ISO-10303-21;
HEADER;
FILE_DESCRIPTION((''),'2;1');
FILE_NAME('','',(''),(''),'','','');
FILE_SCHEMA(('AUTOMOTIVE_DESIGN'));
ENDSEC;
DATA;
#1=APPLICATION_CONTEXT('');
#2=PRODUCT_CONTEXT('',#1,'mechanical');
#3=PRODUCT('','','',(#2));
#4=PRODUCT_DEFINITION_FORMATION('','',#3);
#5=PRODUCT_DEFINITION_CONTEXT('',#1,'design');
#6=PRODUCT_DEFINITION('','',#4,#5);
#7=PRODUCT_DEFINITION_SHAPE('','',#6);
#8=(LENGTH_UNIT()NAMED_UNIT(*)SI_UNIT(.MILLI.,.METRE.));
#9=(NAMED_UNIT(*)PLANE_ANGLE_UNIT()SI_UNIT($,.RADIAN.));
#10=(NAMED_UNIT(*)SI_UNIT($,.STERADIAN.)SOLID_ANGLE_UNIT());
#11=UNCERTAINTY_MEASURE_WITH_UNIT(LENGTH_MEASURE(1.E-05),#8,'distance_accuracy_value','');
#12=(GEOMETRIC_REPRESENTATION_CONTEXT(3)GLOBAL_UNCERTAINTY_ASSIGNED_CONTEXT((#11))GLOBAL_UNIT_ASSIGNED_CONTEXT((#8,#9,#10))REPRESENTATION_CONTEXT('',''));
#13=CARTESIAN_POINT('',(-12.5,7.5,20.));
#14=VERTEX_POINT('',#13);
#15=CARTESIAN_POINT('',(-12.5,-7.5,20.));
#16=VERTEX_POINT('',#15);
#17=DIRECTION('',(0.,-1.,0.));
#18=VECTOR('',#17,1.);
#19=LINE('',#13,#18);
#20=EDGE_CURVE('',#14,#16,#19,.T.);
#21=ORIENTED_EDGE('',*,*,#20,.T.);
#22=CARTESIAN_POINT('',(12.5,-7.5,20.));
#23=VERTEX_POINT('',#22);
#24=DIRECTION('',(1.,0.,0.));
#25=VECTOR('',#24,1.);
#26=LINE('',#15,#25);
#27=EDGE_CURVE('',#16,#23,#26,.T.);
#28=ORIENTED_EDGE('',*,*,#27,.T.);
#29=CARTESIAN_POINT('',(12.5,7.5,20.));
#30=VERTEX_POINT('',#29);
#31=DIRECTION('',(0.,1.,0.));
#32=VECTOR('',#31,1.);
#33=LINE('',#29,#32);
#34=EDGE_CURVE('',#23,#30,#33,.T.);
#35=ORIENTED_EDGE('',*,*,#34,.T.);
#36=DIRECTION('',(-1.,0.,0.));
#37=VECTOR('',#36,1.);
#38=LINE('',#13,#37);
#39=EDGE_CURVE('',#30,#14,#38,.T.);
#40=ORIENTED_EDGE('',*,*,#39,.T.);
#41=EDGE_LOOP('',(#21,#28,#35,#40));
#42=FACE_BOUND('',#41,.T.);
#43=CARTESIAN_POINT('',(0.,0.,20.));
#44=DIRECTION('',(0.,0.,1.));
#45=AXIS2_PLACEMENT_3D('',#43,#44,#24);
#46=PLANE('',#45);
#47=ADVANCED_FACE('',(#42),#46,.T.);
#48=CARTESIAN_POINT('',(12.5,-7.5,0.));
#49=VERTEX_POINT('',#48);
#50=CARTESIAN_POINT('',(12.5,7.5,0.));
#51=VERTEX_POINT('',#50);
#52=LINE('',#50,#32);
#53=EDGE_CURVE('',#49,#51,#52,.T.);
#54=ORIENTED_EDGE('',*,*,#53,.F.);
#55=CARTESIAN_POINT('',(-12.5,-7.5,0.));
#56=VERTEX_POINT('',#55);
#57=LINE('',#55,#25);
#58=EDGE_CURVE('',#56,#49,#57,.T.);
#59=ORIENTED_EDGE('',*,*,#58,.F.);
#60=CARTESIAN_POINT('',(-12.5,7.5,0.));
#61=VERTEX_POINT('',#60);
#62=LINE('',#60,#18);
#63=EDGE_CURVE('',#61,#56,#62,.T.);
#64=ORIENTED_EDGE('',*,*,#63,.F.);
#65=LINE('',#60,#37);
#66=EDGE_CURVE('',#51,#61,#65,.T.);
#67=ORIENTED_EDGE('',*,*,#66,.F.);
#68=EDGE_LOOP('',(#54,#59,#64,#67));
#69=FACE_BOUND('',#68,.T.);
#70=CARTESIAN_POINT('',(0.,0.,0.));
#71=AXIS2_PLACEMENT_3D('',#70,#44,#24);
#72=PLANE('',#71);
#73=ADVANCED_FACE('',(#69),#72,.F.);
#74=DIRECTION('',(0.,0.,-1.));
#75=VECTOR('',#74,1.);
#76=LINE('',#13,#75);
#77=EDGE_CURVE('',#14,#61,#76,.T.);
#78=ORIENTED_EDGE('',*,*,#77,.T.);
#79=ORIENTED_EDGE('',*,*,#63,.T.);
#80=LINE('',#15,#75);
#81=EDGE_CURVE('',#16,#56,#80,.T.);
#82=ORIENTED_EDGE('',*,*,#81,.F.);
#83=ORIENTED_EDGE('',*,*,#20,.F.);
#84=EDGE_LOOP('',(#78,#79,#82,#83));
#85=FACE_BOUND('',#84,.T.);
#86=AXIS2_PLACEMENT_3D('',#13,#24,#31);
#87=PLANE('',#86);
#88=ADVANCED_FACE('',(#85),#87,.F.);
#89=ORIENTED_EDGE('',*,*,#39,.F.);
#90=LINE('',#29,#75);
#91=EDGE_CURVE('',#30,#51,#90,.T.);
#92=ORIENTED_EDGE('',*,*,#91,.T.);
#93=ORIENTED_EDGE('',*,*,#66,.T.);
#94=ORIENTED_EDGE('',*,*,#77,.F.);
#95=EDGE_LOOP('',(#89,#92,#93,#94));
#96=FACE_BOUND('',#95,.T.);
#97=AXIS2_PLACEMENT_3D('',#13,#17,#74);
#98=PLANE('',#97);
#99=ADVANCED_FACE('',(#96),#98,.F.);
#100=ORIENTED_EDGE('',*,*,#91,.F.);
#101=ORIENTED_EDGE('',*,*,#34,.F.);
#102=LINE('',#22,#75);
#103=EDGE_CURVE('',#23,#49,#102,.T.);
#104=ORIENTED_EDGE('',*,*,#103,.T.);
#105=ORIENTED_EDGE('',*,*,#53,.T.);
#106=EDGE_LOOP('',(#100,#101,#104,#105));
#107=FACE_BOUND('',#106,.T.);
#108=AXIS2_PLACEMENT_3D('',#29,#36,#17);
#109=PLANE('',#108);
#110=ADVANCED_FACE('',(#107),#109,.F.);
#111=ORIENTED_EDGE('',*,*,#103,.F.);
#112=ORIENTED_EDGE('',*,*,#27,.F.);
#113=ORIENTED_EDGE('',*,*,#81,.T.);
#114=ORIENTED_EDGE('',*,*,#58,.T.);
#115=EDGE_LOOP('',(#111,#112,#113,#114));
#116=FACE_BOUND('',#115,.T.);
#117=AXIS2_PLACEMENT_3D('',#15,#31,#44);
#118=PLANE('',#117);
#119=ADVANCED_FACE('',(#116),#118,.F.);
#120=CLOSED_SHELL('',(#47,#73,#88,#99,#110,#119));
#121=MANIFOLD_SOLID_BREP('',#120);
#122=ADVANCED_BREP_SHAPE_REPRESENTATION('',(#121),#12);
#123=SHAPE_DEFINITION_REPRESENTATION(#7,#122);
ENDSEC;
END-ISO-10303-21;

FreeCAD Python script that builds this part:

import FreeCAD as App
import Part
import Sketcher
from FreeCAD import Vector


def add_polygon(sketch, points):
    """Adds a closed chain of lines whose ends are joined by coincident constraints."""
    first, n = sketch.GeometryCount, len(points)
    for a, b in zip(points, points[1:] + points[:1]):
        sketch.addGeometry(Part.LineSegment(App.Vector(*a, 0), App.Vector(*b, 0)), False)
    for i in range(n):
        sketch.addConstraint(Sketcher.Constraint("Coincident", first + i, 2, first + (i + 1) % n, 1))

doc = App.newDocument("Part")
params = doc.addObject("Spreadsheet::Sheet", "Params")
for row, (alias, value) in enumerate([
    ("sketch1_width", "25 mm"),
    ("sketch1_height", "15 mm"),
    ("pad1_length", "20 mm"),
], start=1):
    params.set(f"A{row}", alias)
    params.set(f"B{row}", "=" + value)
    params.setAlias(f"B{row}", alias)

body = doc.addObject("PartDesign::Body", "Body")

# Sketch on XY plane
sketch1 = doc.addObject("Sketcher::SketchObject", "Sketch")
body.addObject(sketch1)
sketch1.AttachmentSupport = (doc.XY_Plane, [""])
sketch1.MapMode = "FlatFace"
add_polygon(sketch1, [(-12, 8), (-12, -8), (12, -8), (12, 8)])  # lines 0-3
sketch1.addConstraint([
    Sketcher.Constraint("Vertical", 0),
    Sketcher.Constraint("Horizontal", 1),
    Sketcher.Constraint("Vertical", 2),
    Sketcher.Constraint("Horizontal", 3),
    Sketcher.Constraint("Symmetric", 0, 2, 2, 2, -1, 1),
    Sketcher.Constraint("DistanceX", 1, 1, 1, 2, 25.0),
    Sketcher.Constraint("DistanceY", 0, 2, 0, 1, 15.0),
])
sketch1.setExpression("Constraints[9]", "Params.sketch1_width")
sketch1.setExpression("Constraints[10]", "Params.sketch1_height")
pad1 = doc.addObject("PartDesign::Pad", "Pad")
body.addObject(pad1)
pad1.Profile = sketch1
pad1.setExpression("Length", "Params.pad1_length")

doc.recompute()
